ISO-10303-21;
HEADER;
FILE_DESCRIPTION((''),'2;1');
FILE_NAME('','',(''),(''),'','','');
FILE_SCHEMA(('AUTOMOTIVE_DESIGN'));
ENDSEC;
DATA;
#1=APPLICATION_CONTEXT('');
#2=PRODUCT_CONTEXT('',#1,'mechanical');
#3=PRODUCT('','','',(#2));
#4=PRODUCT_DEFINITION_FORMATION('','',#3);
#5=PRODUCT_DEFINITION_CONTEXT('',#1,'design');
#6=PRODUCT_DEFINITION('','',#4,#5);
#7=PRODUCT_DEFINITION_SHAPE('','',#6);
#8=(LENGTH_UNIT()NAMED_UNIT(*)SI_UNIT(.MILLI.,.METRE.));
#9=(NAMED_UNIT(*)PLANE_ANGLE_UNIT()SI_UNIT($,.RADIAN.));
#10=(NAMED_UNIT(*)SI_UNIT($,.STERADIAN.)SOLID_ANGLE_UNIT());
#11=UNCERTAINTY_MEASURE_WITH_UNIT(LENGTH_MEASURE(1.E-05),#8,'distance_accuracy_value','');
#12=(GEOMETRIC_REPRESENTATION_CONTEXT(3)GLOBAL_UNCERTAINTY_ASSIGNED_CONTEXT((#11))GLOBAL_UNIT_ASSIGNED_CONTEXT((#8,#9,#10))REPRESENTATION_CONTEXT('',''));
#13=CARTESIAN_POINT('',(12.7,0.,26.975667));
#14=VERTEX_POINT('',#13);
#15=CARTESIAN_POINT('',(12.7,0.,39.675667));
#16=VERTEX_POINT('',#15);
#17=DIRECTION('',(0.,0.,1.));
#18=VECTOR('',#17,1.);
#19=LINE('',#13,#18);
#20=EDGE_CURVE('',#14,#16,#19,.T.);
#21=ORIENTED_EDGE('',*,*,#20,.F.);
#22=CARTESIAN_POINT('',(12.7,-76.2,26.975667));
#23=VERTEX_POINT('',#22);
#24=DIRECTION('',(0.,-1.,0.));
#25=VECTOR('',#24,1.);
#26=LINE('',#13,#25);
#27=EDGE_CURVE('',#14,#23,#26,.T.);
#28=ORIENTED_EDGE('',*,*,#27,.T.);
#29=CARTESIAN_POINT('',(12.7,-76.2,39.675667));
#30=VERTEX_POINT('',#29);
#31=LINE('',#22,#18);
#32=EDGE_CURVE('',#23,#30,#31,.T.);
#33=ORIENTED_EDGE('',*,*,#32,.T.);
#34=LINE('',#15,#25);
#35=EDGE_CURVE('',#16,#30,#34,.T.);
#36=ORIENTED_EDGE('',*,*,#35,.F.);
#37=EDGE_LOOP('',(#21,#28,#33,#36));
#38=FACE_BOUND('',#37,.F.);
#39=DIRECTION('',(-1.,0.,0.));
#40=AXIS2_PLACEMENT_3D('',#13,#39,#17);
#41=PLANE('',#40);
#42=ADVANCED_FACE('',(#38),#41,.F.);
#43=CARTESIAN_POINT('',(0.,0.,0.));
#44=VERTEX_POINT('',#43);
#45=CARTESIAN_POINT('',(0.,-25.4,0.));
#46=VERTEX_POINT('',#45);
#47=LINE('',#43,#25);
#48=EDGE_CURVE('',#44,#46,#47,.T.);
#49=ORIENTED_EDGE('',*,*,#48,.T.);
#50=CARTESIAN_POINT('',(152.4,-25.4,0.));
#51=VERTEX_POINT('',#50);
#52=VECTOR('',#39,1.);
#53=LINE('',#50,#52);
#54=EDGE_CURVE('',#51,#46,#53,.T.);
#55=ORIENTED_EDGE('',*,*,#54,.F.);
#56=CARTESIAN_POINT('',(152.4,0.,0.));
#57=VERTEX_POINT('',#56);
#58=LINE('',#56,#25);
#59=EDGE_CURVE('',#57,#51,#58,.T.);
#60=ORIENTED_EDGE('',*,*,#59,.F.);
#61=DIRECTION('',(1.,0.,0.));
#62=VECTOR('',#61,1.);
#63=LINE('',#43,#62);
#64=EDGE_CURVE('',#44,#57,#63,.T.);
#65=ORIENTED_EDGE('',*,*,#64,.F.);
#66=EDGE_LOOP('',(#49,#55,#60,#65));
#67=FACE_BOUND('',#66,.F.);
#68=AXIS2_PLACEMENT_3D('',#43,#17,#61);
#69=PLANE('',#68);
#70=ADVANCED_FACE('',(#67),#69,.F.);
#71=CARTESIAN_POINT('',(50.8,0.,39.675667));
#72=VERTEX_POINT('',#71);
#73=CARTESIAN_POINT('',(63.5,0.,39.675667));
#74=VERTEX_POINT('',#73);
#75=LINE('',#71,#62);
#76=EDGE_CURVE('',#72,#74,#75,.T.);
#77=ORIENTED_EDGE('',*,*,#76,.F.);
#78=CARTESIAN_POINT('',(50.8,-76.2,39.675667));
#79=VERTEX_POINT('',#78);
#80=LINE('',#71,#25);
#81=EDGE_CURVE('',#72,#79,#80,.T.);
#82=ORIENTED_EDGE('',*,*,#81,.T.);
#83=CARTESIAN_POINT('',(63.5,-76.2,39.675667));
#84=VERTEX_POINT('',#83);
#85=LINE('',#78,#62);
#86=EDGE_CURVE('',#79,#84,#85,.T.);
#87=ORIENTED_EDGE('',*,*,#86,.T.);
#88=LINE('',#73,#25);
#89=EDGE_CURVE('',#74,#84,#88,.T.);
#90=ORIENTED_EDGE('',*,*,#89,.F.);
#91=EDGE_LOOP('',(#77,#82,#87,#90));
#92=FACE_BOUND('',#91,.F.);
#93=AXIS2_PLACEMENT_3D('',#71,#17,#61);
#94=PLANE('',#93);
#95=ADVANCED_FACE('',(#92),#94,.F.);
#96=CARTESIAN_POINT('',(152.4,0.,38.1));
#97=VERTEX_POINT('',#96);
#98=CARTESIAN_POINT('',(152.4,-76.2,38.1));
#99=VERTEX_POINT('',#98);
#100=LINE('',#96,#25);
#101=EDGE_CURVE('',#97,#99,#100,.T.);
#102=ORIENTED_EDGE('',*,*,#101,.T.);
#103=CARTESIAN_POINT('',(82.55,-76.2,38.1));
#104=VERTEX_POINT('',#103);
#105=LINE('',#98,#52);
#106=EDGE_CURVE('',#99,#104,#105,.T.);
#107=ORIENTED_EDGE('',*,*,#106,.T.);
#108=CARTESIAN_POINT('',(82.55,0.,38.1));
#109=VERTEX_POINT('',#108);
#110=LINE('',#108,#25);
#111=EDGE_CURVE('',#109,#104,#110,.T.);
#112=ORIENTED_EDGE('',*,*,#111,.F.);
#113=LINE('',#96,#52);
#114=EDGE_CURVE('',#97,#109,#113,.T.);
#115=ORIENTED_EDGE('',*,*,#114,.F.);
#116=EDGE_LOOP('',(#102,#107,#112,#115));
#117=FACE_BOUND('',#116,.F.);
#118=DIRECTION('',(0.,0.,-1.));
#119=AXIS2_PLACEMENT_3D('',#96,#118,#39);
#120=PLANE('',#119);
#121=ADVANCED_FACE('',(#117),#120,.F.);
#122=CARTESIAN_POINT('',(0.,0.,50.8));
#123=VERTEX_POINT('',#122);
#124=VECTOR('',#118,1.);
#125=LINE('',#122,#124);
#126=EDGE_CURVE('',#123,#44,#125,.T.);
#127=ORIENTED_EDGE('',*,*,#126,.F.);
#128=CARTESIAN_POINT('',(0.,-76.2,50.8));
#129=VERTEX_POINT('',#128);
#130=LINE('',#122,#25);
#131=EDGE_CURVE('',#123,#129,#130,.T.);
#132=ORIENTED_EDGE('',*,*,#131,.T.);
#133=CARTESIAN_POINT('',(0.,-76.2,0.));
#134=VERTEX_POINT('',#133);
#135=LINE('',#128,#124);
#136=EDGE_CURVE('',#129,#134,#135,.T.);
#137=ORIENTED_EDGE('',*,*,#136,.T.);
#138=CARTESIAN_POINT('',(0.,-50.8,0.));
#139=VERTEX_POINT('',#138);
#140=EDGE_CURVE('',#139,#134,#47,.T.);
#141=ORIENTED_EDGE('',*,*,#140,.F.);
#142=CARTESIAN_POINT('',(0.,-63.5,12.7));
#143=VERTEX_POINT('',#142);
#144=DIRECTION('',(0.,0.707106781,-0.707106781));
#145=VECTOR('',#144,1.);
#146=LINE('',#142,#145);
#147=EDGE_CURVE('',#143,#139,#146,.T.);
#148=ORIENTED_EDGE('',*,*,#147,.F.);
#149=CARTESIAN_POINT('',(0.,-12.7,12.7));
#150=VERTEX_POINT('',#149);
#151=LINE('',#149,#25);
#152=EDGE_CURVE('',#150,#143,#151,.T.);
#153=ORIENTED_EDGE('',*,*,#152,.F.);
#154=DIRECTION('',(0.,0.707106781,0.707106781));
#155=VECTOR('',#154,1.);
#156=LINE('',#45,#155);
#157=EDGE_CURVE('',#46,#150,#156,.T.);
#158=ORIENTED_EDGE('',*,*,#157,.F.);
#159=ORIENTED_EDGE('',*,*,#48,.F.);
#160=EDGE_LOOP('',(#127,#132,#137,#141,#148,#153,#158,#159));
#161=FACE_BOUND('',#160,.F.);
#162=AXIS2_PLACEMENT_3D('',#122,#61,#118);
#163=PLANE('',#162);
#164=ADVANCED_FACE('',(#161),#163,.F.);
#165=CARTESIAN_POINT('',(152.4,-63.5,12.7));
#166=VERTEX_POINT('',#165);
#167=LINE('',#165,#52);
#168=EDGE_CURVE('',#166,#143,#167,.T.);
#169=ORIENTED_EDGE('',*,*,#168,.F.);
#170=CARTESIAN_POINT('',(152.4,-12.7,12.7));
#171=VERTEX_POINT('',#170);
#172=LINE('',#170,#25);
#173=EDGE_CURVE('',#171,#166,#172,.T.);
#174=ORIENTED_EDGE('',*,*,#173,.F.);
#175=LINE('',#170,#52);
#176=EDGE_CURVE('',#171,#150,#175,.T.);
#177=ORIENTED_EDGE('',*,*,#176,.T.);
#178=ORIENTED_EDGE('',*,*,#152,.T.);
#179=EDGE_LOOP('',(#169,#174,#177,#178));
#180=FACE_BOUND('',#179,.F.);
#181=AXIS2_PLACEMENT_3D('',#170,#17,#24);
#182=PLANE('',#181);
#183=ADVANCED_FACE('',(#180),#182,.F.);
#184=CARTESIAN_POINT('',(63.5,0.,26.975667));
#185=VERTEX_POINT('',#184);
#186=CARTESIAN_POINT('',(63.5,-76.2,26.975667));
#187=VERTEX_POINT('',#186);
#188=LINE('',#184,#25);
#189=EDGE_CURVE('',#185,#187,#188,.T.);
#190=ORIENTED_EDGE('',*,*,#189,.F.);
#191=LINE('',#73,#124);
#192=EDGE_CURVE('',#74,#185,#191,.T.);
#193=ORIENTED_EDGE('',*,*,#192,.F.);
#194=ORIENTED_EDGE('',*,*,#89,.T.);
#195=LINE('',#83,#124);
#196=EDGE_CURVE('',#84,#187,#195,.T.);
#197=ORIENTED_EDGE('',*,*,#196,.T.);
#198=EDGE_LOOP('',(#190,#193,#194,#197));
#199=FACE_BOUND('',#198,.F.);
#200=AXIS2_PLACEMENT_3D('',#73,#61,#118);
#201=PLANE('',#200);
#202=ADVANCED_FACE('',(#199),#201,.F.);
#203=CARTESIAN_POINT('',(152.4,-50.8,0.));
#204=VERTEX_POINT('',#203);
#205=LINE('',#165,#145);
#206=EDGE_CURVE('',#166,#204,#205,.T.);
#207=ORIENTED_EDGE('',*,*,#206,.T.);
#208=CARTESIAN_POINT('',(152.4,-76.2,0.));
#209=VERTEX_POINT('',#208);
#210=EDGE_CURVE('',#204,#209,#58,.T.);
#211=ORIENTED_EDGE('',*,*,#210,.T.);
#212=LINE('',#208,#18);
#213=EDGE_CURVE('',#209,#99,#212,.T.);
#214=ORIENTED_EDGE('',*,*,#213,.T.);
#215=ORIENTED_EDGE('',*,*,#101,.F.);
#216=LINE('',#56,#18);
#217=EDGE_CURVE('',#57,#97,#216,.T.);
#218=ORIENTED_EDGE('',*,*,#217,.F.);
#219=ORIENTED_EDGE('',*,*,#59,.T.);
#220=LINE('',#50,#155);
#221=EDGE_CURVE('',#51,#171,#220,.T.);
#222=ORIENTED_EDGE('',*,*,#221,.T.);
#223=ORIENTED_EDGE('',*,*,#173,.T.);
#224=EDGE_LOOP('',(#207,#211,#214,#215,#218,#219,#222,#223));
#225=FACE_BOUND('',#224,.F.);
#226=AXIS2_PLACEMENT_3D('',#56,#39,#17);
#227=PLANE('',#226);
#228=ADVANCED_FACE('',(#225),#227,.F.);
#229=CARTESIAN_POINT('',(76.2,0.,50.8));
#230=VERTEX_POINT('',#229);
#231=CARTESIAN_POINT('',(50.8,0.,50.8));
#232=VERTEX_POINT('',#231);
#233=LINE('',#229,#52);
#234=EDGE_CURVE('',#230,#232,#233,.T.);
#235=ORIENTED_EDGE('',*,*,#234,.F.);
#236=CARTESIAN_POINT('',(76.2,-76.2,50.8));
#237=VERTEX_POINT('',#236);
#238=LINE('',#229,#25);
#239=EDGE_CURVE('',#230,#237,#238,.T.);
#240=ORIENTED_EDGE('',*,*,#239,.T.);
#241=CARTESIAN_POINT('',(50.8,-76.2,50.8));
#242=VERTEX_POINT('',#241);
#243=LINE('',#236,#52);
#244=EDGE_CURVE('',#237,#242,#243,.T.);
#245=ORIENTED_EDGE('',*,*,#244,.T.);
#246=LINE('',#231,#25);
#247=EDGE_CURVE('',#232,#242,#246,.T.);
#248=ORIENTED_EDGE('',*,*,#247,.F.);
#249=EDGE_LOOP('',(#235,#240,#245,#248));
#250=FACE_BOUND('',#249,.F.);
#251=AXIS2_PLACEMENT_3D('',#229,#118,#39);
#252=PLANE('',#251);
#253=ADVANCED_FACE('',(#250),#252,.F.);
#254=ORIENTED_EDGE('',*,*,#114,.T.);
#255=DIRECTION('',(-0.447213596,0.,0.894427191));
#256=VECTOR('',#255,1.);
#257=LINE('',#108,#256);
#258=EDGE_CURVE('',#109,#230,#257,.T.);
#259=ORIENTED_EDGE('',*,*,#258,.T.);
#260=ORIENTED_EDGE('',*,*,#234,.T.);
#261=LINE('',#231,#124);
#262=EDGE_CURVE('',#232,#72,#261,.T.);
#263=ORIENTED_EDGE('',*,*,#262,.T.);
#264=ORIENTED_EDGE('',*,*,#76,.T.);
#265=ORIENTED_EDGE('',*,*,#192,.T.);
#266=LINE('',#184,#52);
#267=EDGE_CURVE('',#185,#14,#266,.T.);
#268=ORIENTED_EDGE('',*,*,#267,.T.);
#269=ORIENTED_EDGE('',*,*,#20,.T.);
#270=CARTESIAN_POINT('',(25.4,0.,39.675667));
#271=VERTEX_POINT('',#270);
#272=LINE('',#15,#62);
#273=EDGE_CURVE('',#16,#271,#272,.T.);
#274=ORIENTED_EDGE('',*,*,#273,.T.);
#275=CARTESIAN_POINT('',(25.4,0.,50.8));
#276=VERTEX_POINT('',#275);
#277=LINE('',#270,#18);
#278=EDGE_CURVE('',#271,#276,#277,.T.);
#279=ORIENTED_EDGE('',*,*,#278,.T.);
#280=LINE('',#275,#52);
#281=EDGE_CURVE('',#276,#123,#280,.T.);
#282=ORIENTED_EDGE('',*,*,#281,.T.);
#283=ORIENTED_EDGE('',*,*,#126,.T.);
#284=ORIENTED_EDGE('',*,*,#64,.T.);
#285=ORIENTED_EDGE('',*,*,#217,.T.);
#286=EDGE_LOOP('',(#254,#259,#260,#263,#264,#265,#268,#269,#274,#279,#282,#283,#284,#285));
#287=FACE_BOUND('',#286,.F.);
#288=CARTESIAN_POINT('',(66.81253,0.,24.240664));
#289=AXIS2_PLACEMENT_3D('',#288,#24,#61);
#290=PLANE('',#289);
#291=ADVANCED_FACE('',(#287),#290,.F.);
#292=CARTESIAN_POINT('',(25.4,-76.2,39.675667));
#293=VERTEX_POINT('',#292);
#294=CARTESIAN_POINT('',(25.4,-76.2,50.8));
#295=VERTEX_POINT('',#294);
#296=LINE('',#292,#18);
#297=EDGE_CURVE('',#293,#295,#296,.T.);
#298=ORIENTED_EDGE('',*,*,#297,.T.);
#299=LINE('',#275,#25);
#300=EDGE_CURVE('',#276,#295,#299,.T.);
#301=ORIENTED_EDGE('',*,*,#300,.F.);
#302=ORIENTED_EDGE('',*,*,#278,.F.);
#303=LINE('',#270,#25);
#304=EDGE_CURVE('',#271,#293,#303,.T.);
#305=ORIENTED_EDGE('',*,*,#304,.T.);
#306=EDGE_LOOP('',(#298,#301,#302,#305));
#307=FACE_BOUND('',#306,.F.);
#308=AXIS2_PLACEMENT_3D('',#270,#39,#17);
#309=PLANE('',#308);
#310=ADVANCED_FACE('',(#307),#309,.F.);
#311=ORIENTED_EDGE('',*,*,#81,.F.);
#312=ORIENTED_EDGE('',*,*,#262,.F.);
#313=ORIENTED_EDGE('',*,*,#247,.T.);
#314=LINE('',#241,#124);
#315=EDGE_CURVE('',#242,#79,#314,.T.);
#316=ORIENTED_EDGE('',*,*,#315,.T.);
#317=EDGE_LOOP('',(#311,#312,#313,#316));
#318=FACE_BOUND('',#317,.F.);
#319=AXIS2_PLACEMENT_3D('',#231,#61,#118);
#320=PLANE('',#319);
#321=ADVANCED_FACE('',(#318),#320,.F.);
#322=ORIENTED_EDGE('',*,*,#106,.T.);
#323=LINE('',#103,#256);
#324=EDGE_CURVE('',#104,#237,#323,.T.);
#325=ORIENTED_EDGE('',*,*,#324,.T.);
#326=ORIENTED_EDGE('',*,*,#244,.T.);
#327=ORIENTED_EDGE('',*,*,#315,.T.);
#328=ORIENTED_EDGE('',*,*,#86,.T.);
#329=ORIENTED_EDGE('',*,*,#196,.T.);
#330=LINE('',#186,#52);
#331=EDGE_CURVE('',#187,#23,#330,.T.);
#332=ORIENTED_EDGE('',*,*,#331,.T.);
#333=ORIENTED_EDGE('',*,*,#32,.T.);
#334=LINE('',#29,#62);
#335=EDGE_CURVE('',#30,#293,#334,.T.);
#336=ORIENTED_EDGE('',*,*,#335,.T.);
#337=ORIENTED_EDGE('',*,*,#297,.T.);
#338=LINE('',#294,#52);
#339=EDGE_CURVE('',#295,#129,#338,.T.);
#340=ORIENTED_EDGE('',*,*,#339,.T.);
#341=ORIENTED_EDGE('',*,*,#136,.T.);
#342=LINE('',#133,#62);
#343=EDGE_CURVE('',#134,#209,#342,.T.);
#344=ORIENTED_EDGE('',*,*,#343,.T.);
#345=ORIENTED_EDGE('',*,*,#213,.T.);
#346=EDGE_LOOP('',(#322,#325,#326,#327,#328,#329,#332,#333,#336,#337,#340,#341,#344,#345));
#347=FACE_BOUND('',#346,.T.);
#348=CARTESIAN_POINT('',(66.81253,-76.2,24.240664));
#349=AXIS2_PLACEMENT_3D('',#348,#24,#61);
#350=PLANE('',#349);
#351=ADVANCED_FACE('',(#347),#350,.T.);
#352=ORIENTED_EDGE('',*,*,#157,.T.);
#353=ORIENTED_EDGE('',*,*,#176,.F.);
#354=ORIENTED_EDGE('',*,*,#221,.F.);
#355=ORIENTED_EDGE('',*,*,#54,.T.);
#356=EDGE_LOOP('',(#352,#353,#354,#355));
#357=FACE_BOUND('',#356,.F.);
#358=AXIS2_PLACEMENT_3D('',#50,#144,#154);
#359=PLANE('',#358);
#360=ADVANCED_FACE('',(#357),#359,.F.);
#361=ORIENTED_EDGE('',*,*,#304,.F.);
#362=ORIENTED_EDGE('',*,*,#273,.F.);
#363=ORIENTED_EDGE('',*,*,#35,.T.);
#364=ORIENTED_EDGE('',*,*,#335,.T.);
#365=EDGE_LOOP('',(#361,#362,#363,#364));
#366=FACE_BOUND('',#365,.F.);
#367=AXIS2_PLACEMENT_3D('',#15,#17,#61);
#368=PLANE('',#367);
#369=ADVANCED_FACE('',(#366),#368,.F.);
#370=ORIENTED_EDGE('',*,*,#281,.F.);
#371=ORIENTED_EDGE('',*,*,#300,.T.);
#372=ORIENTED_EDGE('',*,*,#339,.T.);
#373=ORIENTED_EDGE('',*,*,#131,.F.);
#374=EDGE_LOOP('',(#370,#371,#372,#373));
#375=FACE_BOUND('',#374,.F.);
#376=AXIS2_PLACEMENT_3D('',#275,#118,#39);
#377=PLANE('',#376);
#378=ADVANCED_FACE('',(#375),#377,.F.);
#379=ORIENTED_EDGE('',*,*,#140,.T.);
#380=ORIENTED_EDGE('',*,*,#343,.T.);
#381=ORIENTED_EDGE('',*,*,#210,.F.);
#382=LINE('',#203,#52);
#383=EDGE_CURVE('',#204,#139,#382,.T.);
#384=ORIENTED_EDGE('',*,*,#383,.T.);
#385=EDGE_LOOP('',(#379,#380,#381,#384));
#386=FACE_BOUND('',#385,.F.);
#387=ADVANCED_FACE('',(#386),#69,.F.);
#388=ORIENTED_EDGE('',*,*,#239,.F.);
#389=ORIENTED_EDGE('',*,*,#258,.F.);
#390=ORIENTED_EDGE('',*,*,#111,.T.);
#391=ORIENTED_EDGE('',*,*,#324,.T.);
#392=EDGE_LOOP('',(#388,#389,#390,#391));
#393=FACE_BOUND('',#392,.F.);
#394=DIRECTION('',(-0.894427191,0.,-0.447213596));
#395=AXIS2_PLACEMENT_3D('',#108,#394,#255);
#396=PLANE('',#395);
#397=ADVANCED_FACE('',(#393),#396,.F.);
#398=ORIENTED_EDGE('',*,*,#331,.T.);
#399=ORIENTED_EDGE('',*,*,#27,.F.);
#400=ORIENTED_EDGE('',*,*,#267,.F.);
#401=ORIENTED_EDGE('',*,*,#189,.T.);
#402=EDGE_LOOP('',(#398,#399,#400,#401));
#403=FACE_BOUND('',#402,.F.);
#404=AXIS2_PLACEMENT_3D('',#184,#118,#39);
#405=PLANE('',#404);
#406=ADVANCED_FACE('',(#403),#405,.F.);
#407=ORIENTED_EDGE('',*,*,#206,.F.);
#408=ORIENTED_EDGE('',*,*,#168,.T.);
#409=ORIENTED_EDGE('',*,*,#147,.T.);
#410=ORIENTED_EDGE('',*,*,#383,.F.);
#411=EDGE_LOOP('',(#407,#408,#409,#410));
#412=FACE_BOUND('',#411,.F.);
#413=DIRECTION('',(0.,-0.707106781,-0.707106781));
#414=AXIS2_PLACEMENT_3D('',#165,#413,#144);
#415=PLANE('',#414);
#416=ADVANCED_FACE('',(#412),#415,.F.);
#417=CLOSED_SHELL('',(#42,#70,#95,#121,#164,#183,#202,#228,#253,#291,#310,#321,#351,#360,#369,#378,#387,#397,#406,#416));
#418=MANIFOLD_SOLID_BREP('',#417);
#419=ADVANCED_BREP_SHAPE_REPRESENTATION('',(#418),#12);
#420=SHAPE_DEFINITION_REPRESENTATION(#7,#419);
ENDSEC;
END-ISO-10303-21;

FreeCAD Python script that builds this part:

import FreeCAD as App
import Part
import Sketcher
from FreeCAD import Vector
Q = App.Units.Quantity

doc = App.newDocument("Part")
body = doc.addObject("PartDesign::Body", "Body")

sketch1 = body.newObject("Sketcher::SketchObject", "Sketch")
sketch1.AttachmentSupport = (doc.getObject("XZ_Plane"), [""])
sketch1.MapMode = "FlatFace"
sketch1.addGeometry(Part.LineSegment(Vector(0, 51, 0), Vector(0, 0, 0)), False)
sketch1.addGeometry(Part.LineSegment(Vector(0, 0, 0), Vector(152, 0, 0)), False)
sketch1.addGeometry(Part.LineSegment(Vector(152, 0, 0), Vector(152, 38, 0)), False)
sketch1.addGeometry(Part.LineSegment(Vector(152, 38, 0), Vector(83, 38, 0)), False)
sketch1.addGeometry(Part.LineSegment(Vector(83, 38, 0), Vector(76, 51, 0)), False)
sketch1.addGeometry(Part.LineSegment(Vector(76, 51, 0), Vector(51, 51, 0)), False)
sketch1.addGeometry(Part.LineSegment(Vector(51, 51, 0), Vector(51, 40, 0)), False)
sketch1.addGeometry(Part.LineSegment(Vector(51, 40, 0), Vector(64, 40, 0)), False)
sketch1.addGeometry(Part.LineSegment(Vector(64, 40, 0), Vector(64, 27, 0)), False)
sketch1.addGeometry(Part.LineSegment(Vector(64, 27, 0), Vector(13, 27, 0)), False)
sketch1.addGeometry(Part.LineSegment(Vector(13, 27, 0), Vector(13, 40, 0)), False)
sketch1.addGeometry(Part.LineSegment(Vector(13, 40, 0), Vector(25, 40, 0)), False)
sketch1.addGeometry(Part.LineSegment(Vector(25, 40, 0), Vector(25, 51, 0)), False)
sketch1.addGeometry(Part.LineSegment(Vector(25, 51, 0), Vector(0, 51, 0)), False)
sketch1.addConstraint(Sketcher.Constraint("Coincident", 0, 2, 1, 1))
sketch1.addConstraint(Sketcher.Constraint("Coincident", 1, 2, 2, 1))
sketch1.addConstraint(Sketcher.Constraint("Coincident", 2, 2, 3, 1))
sketch1.addConstraint(Sketcher.Constraint("Coincident", 3, 2, 4, 1))
sketch1.addConstraint(Sketcher.Constraint("Coincident", 4, 2, 5, 1))
sketch1.addConstraint(Sketcher.Constraint("Coincident", 5, 2, 6, 1))
sketch1.addConstraint(Sketcher.Constraint("Coincident", 6, 2, 7, 1))
sketch1.addConstraint(Sketcher.Constraint("Coincident", 7, 2, 8, 1))
sketch1.addConstraint(Sketcher.Constraint("Coincident", 8, 2, 9, 1))
sketch1.addConstraint(Sketcher.Constraint("Coincident", 9, 2, 10, 1))
sketch1.addConstraint(Sketcher.Constraint("Coincident", 10, 2, 11, 1))
sketch1.addConstraint(Sketcher.Constraint("Coincident", 11, 2, 12, 1))
sketch1.addConstraint(Sketcher.Constraint("Coincident", 12, 2, 13, 1))
sketch1.addConstraint(Sketcher.Constraint("Coincident", 13, 2, 0, 1))
sketch1.addConstraint(Sketcher.Constraint("Vertical", 0))
sketch1.addConstraint(Sketcher.Constraint("Horizontal", 1))
sketch1.addConstraint(Sketcher.Constraint("Vertical", 2))
sketch1.addConstraint(Sketcher.Constraint("Horizontal", 3))
sketch1.addConstraint(Sketcher.Constraint("Horizontal", 5))
sketch1.addConstraint(Sketcher.Constraint("Vertical", 6))
sketch1.addConstraint(Sketcher.Constraint("Horizontal", 7))
sketch1.addConstraint(Sketcher.Constraint("Vertical", 8))
sketch1.addConstraint(Sketcher.Constraint("Horizontal", 9))
sketch1.addConstraint(Sketcher.Constraint("Vertical", 10))
sketch1.addConstraint(Sketcher.Constraint("Horizontal", 11))
sketch1.addConstraint(Sketcher.Constraint("Vertical", 12))
sketch1.addConstraint(Sketcher.Constraint("Horizontal", 13))
sketch1.addConstraint(Sketcher.Constraint("Coincident", 0, 2, -1, 1))
sketch1.addConstraint(Sketcher.Constraint("Horizontal", 7, 2, 10, 2))
sketch1.addConstraint(Sketcher.Constraint("Horizontal", 5, 2, 12, 2))
sketch1.addConstraint(Sketcher.Constraint("Equal", 7, 11))
sketch1.addConstraint(Sketcher.Constraint("Equal", 5, 13))
sketch1.addConstraint(Sketcher.Constraint("Equal", 9, 0))
sketch1.addConstraint(Sketcher.Constraint("Equal", 11, 8))
sketch1.addConstraint(Sketcher.Constraint("DistanceX", 1, 1, 1, 2, Q("6 in")))
sketch1.addConstraint(Sketcher.Constraint("DistanceX", 5, 2, 5, 1, Q("1 in")))
sketch1.addConstraint(Sketcher.Constraint("DistanceX", 9, 2, 9, 1, Q("2 in")))
sketch1.addConstraint(Sketcher.Constraint("DistanceX", 7, 1, 7, 2, Q("0.5 in")))
sketch1.addConstraint(Sketcher.Constraint("DistanceY", 2, 1, 2, 2, Q("1.5 in")))
sketch1.addConstraint(Sketcher.Constraint("DistanceX", 3, 2, 3, 1, Q("2.75 in")))
sketch1.addConstraint(Sketcher.Constraint("DistanceY", 6, 2, 6, 1, 11.124333))
pad1 = body.newObject("PartDesign::Pad", "Pad")
pad1.Profile = sketch1
pad1.Length = Q("3 in")

sketch2 = body.newObject("Sketcher::SketchObject", "Sketch001")
sketch2.AttachmentSupport = (doc.getObject("YZ_Plane"), [""])
sketch2.MapMode = "FlatFace"
sketch2.AttachmentOffset = App.Placement(Vector(0, 0, 6 * 25.4), App.Rotation())
sketch2.addGeometry(Part.LineSegment(Vector(-13, 13, 0), Vector(-64, 13, 0)), False)
sketch2.addGeometry(Part.LineSegment(Vector(-64, 13, 0), Vector(-51, 0, 0)), False)
sketch2.addGeometry(Part.LineSegment(Vector(-51, 0, 0), Vector(-25, 0, 0)), False)
sketch2.addGeometry(Part.LineSegment(Vector(-25, 0, 0), Vector(-13, 13, 0)), False)
sketch2.addConstraint(Sketcher.Constraint("Coincident", 0, 2, 1, 1))
sketch2.addConstraint(Sketcher.Constraint("Coincident", 1, 2, 2, 1))
sketch2.addConstraint(Sketcher.Constraint("Coincident", 2, 2, 3, 1))
sketch2.addConstraint(Sketcher.Constraint("Coincident", 3, 2, 0, 1))
sketch2.addConstraint(Sketcher.Constraint("Horizontal", 0))
sketch2.addConstraint(Sketcher.Constraint("Horizontal", 2))
sketch2.addConstraint(Sketcher.Constraint("PointOnObject", 1, 2, -1))
sketch2.addConstraint(Sketcher.Constraint("Perpendicular", 1, 3))
sketch2.addConstraint(Sketcher.Constraint("Equal", 1, 3))
sketch2.addConstraint(Sketcher.Constraint("DistanceX", 0, 2, 0, 1, Q("2 in")))
sketch2.addConstraint(Sketcher.Constraint("DistanceX", 2, 1, 2, 2, Q("1 in")))
sketch2.addConstraint(Sketcher.Constraint("DistanceX", 1, 2, -1, 1, Q("2 in")))
pocket1 = body.newObject("PartDesign::Pocket", "Pocket")
pocket1.Profile = sketch2
pocket1.Type = "ThroughAll"

doc.recompute()
